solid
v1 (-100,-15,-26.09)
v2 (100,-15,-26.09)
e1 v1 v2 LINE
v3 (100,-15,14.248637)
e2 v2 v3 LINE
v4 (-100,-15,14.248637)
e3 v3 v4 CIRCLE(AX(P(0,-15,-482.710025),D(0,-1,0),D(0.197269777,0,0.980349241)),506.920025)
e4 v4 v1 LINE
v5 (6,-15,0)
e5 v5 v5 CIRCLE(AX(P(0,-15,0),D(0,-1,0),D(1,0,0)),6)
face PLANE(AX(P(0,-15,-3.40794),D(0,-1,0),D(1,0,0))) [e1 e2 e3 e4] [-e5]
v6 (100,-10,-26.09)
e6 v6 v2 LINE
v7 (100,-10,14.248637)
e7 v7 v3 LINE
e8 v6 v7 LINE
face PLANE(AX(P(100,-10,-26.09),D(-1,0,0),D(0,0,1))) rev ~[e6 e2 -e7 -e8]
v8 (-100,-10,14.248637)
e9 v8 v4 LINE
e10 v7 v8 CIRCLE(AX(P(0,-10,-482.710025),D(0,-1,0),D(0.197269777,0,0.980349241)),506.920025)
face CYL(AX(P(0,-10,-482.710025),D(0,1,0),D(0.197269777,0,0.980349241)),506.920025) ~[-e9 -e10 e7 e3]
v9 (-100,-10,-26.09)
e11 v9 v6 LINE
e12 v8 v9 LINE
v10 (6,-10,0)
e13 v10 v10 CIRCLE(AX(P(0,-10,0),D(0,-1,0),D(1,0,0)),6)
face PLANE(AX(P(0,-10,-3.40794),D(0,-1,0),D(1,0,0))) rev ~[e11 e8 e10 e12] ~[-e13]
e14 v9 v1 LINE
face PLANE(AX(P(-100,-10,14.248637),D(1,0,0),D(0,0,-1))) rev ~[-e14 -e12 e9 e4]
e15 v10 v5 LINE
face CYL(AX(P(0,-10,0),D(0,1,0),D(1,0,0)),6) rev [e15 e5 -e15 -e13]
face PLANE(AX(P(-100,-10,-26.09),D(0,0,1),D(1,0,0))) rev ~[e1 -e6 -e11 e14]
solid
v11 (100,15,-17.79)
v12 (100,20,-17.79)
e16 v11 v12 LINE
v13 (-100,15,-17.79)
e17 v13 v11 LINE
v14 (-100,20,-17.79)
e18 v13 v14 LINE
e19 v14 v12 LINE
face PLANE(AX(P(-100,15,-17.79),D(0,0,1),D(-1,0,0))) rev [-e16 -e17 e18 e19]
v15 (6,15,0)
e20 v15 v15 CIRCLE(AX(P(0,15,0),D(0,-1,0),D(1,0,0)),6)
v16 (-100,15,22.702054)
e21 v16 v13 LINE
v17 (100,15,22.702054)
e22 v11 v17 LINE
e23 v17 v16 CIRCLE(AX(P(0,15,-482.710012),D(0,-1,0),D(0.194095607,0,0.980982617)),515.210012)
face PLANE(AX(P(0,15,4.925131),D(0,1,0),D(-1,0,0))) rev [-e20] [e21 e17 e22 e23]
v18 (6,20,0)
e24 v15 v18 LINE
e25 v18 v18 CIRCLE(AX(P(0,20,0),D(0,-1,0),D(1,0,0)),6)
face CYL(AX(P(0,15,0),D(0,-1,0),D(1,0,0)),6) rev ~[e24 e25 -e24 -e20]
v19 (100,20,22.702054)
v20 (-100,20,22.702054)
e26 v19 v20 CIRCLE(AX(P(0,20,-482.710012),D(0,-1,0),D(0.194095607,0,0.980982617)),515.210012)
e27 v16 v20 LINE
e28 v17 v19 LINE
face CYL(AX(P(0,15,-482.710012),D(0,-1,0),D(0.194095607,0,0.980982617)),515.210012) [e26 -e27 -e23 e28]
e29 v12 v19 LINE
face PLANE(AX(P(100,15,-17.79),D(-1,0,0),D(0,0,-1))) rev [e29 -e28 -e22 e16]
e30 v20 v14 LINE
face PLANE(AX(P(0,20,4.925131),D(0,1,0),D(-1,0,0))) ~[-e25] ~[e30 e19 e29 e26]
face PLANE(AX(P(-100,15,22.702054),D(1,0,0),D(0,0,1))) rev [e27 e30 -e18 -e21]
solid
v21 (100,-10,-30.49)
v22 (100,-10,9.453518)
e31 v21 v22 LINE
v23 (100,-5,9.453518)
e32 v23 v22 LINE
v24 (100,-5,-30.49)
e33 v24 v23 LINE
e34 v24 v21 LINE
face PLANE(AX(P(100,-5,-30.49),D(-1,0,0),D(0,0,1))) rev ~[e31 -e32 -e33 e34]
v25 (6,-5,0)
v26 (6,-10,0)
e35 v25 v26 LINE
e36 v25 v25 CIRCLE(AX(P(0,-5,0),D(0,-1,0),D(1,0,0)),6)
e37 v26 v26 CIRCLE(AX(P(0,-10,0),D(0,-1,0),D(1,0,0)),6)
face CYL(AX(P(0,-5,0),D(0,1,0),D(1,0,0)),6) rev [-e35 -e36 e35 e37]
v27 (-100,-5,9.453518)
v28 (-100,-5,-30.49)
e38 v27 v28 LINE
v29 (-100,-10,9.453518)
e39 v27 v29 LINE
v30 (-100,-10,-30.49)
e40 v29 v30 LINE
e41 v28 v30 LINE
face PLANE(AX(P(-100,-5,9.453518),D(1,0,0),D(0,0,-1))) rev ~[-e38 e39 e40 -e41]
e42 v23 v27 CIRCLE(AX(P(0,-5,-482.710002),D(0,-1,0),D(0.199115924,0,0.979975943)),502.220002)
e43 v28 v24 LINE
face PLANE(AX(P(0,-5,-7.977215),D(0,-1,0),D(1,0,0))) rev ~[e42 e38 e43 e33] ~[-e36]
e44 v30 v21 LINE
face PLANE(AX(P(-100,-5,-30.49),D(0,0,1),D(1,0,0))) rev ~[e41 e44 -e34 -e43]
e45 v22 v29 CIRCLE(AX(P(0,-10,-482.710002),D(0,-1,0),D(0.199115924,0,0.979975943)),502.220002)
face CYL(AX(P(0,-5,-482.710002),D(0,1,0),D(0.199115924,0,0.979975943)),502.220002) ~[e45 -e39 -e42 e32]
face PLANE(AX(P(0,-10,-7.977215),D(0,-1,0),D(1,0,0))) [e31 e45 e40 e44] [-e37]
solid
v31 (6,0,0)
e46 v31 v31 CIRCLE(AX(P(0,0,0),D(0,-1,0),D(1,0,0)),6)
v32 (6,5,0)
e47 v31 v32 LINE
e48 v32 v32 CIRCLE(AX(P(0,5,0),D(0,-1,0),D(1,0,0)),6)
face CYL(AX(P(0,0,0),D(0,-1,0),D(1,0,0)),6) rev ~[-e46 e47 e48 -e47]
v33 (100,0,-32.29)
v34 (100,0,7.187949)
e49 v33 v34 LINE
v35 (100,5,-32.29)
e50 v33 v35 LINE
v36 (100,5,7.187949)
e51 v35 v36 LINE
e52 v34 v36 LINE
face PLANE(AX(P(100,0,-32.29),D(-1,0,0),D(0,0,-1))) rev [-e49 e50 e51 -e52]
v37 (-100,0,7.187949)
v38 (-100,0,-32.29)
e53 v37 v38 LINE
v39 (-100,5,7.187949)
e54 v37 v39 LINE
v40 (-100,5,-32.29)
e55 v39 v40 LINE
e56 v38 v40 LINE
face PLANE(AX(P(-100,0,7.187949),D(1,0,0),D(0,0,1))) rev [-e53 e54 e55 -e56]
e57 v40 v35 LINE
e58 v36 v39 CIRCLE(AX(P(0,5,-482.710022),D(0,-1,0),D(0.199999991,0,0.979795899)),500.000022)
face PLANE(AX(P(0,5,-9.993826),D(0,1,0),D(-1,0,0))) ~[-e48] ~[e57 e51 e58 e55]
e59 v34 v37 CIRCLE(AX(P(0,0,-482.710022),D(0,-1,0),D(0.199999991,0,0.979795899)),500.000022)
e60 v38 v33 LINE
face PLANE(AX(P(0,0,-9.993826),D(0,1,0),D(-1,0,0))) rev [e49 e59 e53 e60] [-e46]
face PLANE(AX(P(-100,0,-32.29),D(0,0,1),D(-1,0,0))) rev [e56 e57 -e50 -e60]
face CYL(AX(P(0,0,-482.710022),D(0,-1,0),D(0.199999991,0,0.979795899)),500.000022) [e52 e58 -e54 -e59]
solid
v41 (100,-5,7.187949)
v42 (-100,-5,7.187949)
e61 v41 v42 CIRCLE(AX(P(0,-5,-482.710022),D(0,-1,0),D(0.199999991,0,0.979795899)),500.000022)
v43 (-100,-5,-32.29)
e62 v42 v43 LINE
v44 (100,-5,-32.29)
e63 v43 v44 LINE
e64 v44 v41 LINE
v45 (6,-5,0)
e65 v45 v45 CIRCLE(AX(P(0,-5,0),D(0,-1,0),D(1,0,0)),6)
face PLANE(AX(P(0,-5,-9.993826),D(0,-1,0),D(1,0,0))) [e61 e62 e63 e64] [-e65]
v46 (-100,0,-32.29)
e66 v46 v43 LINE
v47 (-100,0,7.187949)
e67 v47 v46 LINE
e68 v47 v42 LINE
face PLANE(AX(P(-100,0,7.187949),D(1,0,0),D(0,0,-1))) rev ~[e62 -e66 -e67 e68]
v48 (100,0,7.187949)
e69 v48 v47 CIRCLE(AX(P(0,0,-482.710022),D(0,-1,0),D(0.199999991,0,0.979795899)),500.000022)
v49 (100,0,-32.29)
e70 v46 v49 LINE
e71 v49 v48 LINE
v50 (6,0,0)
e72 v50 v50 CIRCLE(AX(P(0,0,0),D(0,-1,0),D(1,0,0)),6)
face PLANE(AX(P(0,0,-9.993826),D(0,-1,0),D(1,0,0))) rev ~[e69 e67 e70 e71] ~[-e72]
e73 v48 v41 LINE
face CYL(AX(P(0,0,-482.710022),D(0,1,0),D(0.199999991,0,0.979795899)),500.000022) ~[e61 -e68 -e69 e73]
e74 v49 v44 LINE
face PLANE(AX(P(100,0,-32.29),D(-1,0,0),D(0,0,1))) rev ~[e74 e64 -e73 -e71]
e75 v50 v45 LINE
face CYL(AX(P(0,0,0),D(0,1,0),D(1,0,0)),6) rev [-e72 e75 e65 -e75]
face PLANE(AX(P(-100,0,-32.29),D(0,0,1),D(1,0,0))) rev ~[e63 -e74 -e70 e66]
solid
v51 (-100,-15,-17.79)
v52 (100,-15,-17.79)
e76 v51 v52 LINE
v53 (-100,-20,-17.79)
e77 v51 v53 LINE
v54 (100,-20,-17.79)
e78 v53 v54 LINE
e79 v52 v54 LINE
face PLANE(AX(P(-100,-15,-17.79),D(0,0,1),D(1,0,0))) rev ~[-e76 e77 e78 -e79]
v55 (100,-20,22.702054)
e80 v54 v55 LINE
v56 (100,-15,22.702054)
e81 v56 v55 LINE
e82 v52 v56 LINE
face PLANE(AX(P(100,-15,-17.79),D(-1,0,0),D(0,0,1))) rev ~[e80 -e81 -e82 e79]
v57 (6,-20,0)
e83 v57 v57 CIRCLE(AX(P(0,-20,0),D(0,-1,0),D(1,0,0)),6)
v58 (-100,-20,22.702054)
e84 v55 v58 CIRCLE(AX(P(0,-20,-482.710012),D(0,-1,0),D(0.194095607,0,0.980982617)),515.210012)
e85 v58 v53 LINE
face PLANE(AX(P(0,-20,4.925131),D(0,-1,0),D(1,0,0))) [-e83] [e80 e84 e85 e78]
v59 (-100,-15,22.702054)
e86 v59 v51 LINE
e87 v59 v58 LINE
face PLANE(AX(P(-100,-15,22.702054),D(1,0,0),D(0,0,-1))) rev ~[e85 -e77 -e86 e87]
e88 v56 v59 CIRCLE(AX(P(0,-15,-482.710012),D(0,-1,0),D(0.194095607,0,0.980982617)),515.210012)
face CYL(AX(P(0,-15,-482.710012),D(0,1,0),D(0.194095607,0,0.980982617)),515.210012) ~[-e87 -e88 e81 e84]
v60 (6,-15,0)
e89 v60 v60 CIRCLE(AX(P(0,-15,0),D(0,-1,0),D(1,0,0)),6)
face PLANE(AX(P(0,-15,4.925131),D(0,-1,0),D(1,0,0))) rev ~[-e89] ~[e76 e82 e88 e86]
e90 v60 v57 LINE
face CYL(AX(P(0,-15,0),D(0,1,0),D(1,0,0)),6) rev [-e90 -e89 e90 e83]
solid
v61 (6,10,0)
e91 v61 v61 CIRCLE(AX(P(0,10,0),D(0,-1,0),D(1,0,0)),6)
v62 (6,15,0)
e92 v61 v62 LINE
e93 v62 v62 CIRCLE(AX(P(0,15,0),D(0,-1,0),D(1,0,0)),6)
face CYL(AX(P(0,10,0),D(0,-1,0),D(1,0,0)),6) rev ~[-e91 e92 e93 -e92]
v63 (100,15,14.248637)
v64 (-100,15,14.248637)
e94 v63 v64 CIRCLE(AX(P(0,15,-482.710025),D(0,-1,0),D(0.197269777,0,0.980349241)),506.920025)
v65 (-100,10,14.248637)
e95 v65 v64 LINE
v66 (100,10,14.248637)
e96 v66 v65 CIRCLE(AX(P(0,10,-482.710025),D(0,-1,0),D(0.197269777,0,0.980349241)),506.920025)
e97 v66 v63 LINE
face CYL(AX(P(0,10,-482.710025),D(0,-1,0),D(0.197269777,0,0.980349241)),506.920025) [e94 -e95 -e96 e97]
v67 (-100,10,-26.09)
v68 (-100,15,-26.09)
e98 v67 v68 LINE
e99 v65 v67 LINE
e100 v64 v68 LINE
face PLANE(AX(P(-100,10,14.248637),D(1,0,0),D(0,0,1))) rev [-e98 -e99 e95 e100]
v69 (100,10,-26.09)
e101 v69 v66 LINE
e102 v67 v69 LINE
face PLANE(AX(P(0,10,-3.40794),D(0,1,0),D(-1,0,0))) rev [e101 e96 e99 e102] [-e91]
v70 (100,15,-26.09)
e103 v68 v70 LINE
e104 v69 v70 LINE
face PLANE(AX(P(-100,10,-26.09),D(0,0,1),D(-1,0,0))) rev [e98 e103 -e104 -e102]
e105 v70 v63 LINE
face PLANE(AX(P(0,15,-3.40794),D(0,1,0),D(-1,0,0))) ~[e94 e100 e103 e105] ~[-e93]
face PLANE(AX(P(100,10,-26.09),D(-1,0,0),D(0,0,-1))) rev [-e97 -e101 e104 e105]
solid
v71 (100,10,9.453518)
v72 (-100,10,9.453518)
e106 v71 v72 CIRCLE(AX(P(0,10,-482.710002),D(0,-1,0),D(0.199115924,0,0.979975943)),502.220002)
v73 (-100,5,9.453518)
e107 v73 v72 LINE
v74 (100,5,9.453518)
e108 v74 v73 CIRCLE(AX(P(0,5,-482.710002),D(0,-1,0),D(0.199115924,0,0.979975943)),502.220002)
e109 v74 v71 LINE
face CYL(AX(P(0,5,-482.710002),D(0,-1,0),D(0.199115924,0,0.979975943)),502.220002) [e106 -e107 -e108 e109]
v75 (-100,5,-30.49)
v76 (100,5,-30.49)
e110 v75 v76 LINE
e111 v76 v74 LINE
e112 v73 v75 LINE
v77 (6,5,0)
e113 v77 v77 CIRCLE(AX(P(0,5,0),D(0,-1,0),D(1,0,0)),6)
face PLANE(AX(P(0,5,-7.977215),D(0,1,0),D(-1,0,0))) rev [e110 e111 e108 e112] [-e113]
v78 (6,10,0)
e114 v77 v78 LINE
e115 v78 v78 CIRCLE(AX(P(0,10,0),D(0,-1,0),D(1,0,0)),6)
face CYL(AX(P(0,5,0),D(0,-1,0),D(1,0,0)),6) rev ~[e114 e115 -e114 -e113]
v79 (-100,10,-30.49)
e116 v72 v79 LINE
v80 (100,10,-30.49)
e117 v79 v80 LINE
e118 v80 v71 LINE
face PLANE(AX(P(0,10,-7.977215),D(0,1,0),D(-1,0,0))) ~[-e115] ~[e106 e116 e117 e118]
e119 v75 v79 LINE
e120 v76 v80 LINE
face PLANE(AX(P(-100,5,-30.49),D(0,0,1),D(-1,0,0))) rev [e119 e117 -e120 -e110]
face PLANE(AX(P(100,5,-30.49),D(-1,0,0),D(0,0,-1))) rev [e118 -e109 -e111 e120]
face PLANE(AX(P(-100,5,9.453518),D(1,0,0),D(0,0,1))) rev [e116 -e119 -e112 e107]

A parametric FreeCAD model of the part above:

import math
import FreeCAD as App
import Part
import Sketcher

V = App.Vector
Q = App.Units.Quantity

doc = App.newDocument("Part")
body = doc.addObject("PartDesign::Body", "Body")

# Sketch on XZ plane
sketch1 = body.newObject("Sketcher::SketchObject", "Sketch")
sketch1.AttachmentSupport = (doc.getObject("XZ_Plane"), [""])
sketch1.MapMode = "FlatFace"
sketch1.addGeometry([
    Part.LineSegment(V(-100, 7, 0), V(-100, -32, 0)),  # 0
    Part.LineSegment(V(-100, -32, 0), V(100, -32, 0)),  # 1
    Part.LineSegment(V(100, -32, 0), V(100, 7, 0)),  # 2
    Part.ArcOfCircle(Part.Circle(V(0, -483, 0), V(0, 0, 1), 500), math.radians(78), math.radians(102)),  # 3
    Part.Circle(V(0, 0, 0), V(0, 0, 1), 6),  # 4
], False)
sketch1.addConstraint([
    Sketcher.Constraint("Coincident", 0, 2, 1, 1),
    Sketcher.Constraint("Coincident", 1, 2, 2, 1),
    Sketcher.Constraint("Coincident", 2, 2, 3, 1),
    Sketcher.Constraint("Coincident", 3, 2, 0, 1),
    Sketcher.Constraint("Vertical", 0),
    Sketcher.Constraint("Horizontal", 1),
    Sketcher.Constraint("Vertical", 2),
    Sketcher.Constraint("Coincident", 4, 3, -1, 1),
    Sketcher.Constraint("PointOnObject", 3, 3, -2),
    Sketcher.Constraint("Equal", 0, 2),
    Sketcher.Constraint("Diameter", 4, Q("12 mm")),
    Sketcher.Constraint("DistanceX", 1, 1, 1, 2, Q("200 mm")),
    Sketcher.Constraint("DistanceY", 0, 2, -1, 1, Q("32.29 mm")),
    Sketcher.Constraint("Radius", 3, Q("500.000022 mm")),
    Sketcher.Constraint("DistanceY", 0, 2, 0, 1, Q("39.477949 mm")),
])
pad1 = body.newObject("PartDesign::Pad", "Pad")
pad1.Profile = sketch1
pad1.Length = 5
body2 = doc.addObject("PartDesign::Body", "Body001")

# Sketch on XZ plane
sketch2 = body2.newObject("Sketcher::SketchObject", "Sketch001")
sketch2.AttachmentSupport = (doc.getObject("XZ_Plane001"), [""])
sketch2.MapMode = "FlatFace"
sketch2.AttachmentOffset = App.Placement(V(0, 0, 5), App.Rotation())
sketch2.addGeometry([
    Part.LineSegment(V(-100, -30, 0), V(100, -30, 0)),  # 0
    Part.LineSegment(V(100, -30, 0), V(100, 9, 0)),  # 1
    Part.ArcOfCircle(Part.Circle(V(0, -483, 0), V(0, 0, 1), 502), math.radians(79), math.radians(101)),  # 2
    Part.LineSegment(V(-100, 9, 0), V(-100, -30, 0)),  # 3
    Part.Circle(V(0, 0, 0), V(0, 0, 1), 6),  # 4
], False)
sketch2.addConstraint([
    Sketcher.Constraint("Coincident", 0, 2, 1, 1),
    Sketcher.Constraint("Coincident", 1, 2, 2, 1),
    Sketcher.Constraint("Coincident", 2, 2, 3, 1),
    Sketcher.Constraint("Coincident", 3, 2, 0, 1),
    Sketcher.Constraint("Horizontal", 0),
    Sketcher.Constraint("Vertical", 1),
    Sketcher.Constraint("Vertical", 3),
    Sketcher.Constraint("Coincident", 4, 3, -1, 1),
    Sketcher.Constraint("PointOnObject", 2, 3, -2),
    Sketcher.Constraint("Equal", 1, 3),
    Sketcher.Constraint("Diameter", 4, Q("12 mm")),
    Sketcher.Constraint("DistanceX", 0, 1, 0, 2, Q("200 mm")),
    Sketcher.Constraint("DistanceY", 0, 2, -1, 1, Q("30.49 mm")),
    Sketcher.Constraint("Radius", 2, Q("502.220002 mm")),
    Sketcher.Constraint("DistanceY", 1, 1, 1, 2, Q("39.943518 mm")),
])
pad2 = body2.newObject("PartDesign::Pad", "Pad001")
pad2.Profile = sketch2
pad2.Length = 5
body3 = doc.addObject("PartDesign::Body", "Body002")

# Sketch on XZ plane
sketch3 = body3.newObject("Sketcher::SketchObject", "Sketch002")
sketch3.AttachmentSupport = (doc.getObject("XZ_Plane002"), [""])
sketch3.MapMode = "FlatFace"
sketch3.AttachmentOffset = App.Placement(V(0, 0, 10), App.Rotation())
sketch3.addGeometry([
    Part.LineSegment(V(-100, -26, 0), V(100, -26, 0)),  # 0
    Part.LineSegment(V(100, -26, 0), V(100, 14, 0)),  # 1
    Part.ArcOfCircle(Part.Circle(V(0, -483, 0), V(0, 0, 1), 507), math.radians(79), math.radians(101)),  # 2
    Part.LineSegment(V(-100, 14, 0), V(-100, -26, 0)),  # 3
    Part.Circle(V(0, 0, 0), V(0, 0, 1), 6),  # 4
], False)
sketch3.addConstraint([
    Sketcher.Constraint("Coincident", 0, 2, 1, 1),
    Sketcher.Constraint("Coincident", 1, 2, 2, 1),
    Sketcher.Constraint("Coincident", 2, 2, 3, 1),
    Sketcher.Constraint("Coincident", 3, 2, 0, 1),
    Sketcher.Constraint("Horizontal", 0),
    Sketcher.Constraint("Vertical", 1),
    Sketcher.Constraint("Vertical", 3),
    Sketcher.Constraint("Coincident", 4, 3, -1, 1),
    Sketcher.Constraint("PointOnObject", 2, 3, -2),
    Sketcher.Constraint("Equal", 1, 3),
    Sketcher.Constraint("Diameter", 4, Q("12 mm")),
    Sketcher.Constraint("DistanceX", 0, 1, 0, 2, Q("200 mm")),
    Sketcher.Constraint("DistanceY", 0, 2, -1, 1, Q("26.09 mm")),
    Sketcher.Constraint("Radius", 2, Q("506.920025 mm")),
    Sketcher.Constraint("DistanceY", 1, 1, 1, 2, Q("40.338637 mm")),
])
pad3 = body3.newObject("PartDesign::Pad", "Pad002")
pad3.Profile = sketch3
pad3.Length = 5
body4 = doc.addObject("PartDesign::Body", "Body003")

# Sketch on XZ plane
sketch4 = body4.newObject("Sketcher::SketchObject", "Sketch003")
sketch4.AttachmentSupport = (doc.getObject("XZ_Plane003"), [""])
sketch4.MapMode = "FlatFace"
sketch4.AttachmentOffset = App.Placement(V(0, 0, 15), App.Rotation())
sketch4.addGeometry([
    Part.LineSegment(V(-100, -18, 0), V(100, -18, 0)),  # 0
    Part.LineSegment(V(100, -18, 0), V(100, 23, 0)),  # 1
    Part.ArcOfCircle(Part.Circle(V(0, -483, 0), V(0, 0, 1), 515), math.radians(79), math.radians(101)),  # 2
    Part.LineSegment(V(-100, 23, 0), V(-100, -18, 0)),  # 3
    Part.Circle(V(0, 0, 0), V(0, 0, 1), 6),  # 4
], False)
sketch4.addConstraint([
    Sketcher.Constraint("Coincident", 0, 2, 1, 1),
    Sketcher.Constraint("Coincident", 1, 2, 2, 1),
    Sketcher.Constraint("Coincident", 2, 2, 3, 1),
    Sketcher.Constraint("Coincident", 3, 2, 0, 1),
    Sketcher.Constraint("Horizontal", 0),
    Sketcher.Constraint("Vertical", 1),
    Sketcher.Constraint("Vertical", 3),
    Sketcher.Constraint("Coincident", 4, 3, -1, 1),
    Sketcher.Constraint("PointOnObject", 2, 3, -2),
    Sketcher.Constraint("Equal", 1, 3),
    Sketcher.Constraint("Diameter", 4, Q("12 mm")),
    Sketcher.Constraint("DistanceX", 0, 1, 0, 2, Q("200 mm")),
    Sketcher.Constraint("DistanceY", 0, 2, -1, 1, Q("17.79 mm")),
    Sketcher.Constraint("Radius", 2, Q("515.210012 mm")),
    Sketcher.Constraint("DistanceY", 1, 1, 1, 2, Q("40.492054 mm")),
])
pad4 = body4.newObject("PartDesign::Pad", "Pad003")
pad4.Profile = sketch4
pad4.Length = 5
body5 = doc.addObject("PartDesign::Body", "Body004")
doc.recompute()

mirroring = doc.addObject("Part::Mirroring", "Mirroring")
mirroring.Source = body
mirroring.Base = V(0, 0, 0)
mirroring.Normal = V(0, -1, 0)
body5.BaseFeature = mirroring
doc.recompute()
body6 = doc.addObject("PartDesign::Body", "Body005")
doc.recompute()

mirroring2 = doc.addObject("Part::Mirroring", "Mirroring001")
mirroring2.Source = body2
mirroring2.Base = V(0, 0, 0)
mirroring2.Normal = V(0, -1, 0)
body6.BaseFeature = mirroring2
doc.recompute()
body7 = doc.addObject("PartDesign::Body", "Body006")
doc.recompute()

mirroring3 = doc.addObject("Part::Mirroring", "Mirroring002")
mirroring3.Source = body3
mirroring3.Base = V(0, 0, 0)
mirroring3.Normal = V(0, -1, 0)
body7.BaseFeature = mirroring3
doc.recompute()
body8 = doc.addObject("PartDesign::Body", "Body007")
doc.recompute()

mirroring4 = doc.addObject("Part::Mirroring", "Mirroring003")
mirroring4.Source = body4
mirroring4.Base = V(0, 0, 0)
mirroring4.Normal = V(0, -1, 0)
body8.BaseFeature = mirroring4
doc.recompute()
mirroring.Visibility = False
mirroring2.Visibility = False
mirroring3.Visibility = False
mirroring4.Visibility = False

doc.recompute()
